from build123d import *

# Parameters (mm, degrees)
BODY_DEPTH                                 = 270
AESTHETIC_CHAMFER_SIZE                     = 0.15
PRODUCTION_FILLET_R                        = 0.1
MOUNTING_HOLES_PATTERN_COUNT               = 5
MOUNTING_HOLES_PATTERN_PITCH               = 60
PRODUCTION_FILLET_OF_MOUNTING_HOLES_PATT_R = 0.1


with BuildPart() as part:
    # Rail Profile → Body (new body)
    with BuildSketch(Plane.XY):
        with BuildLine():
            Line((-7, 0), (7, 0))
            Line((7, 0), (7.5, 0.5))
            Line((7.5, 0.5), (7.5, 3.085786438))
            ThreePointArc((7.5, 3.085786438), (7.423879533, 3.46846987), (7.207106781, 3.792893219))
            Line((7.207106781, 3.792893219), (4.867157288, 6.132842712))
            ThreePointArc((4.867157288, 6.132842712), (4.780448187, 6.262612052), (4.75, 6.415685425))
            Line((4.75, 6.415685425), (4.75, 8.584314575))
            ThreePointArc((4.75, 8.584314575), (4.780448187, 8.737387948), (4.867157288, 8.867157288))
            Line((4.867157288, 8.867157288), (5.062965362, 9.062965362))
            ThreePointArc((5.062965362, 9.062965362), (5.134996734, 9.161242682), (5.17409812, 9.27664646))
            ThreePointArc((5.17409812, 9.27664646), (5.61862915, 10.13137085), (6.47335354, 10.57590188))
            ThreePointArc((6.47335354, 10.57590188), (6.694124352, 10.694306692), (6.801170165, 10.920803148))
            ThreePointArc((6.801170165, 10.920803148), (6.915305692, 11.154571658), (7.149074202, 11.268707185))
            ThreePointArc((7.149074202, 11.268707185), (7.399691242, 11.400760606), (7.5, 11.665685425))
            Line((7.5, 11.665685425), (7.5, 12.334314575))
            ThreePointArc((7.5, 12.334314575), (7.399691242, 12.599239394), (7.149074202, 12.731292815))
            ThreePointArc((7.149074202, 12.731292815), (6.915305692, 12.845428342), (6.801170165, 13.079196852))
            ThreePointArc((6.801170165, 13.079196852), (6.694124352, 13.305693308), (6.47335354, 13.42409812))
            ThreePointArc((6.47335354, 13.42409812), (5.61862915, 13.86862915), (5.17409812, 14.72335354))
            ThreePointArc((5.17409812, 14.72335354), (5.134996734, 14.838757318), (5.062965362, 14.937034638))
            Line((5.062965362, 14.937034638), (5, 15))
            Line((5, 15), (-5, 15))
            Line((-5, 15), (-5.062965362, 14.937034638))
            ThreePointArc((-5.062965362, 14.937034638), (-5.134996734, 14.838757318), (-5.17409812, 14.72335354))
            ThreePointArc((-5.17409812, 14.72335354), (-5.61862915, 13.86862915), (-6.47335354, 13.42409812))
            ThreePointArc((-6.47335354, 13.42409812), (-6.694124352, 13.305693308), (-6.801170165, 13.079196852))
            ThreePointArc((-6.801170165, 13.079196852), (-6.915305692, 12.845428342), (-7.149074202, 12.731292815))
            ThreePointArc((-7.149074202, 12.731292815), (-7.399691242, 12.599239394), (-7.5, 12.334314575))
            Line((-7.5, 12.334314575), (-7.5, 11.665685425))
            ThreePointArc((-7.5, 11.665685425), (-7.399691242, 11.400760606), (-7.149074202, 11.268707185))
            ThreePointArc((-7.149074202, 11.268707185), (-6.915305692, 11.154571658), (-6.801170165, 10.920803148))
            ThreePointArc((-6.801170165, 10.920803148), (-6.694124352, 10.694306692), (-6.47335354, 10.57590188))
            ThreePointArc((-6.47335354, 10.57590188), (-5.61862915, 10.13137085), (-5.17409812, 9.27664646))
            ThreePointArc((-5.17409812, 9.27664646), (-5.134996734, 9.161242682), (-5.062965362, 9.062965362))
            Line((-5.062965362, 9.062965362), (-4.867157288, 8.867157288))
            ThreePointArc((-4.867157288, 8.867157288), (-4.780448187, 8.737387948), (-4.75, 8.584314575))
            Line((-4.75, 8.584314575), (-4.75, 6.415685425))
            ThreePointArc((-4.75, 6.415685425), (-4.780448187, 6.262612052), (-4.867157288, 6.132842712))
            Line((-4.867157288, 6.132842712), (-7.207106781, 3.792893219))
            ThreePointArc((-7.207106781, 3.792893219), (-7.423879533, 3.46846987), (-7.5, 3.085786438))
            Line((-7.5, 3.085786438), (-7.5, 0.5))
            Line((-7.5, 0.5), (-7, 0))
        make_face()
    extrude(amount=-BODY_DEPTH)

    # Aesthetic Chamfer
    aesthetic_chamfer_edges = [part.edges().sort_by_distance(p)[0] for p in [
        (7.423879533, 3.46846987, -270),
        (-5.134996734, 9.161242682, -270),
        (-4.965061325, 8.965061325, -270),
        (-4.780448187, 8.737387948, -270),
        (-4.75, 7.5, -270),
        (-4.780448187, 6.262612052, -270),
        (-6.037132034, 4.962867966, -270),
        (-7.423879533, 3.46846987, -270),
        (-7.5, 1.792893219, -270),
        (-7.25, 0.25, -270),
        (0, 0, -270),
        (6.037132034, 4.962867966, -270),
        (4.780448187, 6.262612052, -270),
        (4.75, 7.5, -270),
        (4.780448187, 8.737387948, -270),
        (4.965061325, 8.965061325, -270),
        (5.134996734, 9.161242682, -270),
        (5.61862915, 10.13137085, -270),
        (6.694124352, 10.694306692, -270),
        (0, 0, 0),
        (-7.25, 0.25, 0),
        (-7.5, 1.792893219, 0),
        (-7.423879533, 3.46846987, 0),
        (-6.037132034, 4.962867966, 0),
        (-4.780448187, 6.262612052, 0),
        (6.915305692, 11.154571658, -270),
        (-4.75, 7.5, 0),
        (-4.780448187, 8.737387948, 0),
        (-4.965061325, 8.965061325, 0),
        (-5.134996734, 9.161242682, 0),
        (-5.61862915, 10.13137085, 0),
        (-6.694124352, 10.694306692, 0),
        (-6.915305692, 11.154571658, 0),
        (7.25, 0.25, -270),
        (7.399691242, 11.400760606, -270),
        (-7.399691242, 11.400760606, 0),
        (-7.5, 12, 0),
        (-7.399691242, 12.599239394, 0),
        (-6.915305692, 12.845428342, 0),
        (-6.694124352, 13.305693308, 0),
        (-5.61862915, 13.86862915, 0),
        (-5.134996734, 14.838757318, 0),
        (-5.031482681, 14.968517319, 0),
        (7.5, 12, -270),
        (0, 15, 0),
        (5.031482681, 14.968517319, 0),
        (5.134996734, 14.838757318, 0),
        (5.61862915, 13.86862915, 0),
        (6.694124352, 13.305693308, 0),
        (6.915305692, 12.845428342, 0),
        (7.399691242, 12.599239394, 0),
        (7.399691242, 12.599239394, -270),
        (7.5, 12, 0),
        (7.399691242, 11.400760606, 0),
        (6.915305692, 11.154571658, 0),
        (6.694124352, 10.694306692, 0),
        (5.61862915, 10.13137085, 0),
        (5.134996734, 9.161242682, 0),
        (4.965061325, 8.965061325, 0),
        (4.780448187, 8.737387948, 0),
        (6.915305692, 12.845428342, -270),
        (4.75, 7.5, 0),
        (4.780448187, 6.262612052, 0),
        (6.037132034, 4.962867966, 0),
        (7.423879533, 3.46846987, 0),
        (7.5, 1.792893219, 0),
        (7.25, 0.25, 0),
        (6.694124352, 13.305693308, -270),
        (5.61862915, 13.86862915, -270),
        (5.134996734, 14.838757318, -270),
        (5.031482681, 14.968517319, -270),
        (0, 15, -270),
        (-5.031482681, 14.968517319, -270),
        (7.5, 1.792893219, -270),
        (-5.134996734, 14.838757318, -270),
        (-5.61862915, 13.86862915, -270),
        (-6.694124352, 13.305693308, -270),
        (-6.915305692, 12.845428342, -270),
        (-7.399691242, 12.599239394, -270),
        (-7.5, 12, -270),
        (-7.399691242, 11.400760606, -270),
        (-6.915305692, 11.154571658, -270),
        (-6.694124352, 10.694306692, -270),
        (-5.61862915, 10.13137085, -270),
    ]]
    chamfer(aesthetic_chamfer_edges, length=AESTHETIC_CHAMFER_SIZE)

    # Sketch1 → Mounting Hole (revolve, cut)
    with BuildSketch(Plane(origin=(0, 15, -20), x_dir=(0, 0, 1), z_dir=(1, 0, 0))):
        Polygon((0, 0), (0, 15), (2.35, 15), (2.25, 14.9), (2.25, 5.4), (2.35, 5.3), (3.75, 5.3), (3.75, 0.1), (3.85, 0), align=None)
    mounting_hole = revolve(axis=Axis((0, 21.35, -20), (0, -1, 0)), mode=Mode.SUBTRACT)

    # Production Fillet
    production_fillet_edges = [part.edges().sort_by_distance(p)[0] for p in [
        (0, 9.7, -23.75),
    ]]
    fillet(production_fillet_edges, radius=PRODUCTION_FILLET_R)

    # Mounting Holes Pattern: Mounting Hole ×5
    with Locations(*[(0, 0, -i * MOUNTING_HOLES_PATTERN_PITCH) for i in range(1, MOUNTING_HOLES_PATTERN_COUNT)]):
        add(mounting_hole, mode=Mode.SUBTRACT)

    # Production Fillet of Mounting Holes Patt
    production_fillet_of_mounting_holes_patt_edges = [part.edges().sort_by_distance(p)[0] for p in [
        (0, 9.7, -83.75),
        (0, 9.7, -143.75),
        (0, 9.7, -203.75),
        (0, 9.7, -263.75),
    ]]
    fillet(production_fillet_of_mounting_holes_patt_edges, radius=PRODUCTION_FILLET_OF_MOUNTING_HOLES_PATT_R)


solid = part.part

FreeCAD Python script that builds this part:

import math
import FreeCAD as App
import Part
import Sketcher

V = App.Vector
Q = App.Units.Quantity


def edges_at(feature, points):
    """Names of the edges that pass closest to the given points."""
    edges = feature.Shape.Edges
    near = lambda p: min(range(len(edges)), key=lambda i: edges[i].distToShape(Part.Vertex(*p))[0])
    return sorted({f"Edge{near(p) + 1}" for p in points})


def add_polygon(sketch, points):
    """Adds a closed chain of lines whose ends are joined by coincident constraints."""
    first, n = sketch.GeometryCount, len(points)
    for a, b in zip(points, points[1:] + points[:1]):
        sketch.addGeometry(Part.LineSegment(App.Vector(*a, 0), App.Vector(*b, 0)), False)
    for i in range(n):
        sketch.addConstraint(Sketcher.Constraint("Coincident", first + i, 2, first + (i + 1) % n, 1))

doc = App.newDocument("Part")
body = doc.addObject("PartDesign::Body", "Body")

sketch1 = body.newObject("Sketcher::SketchObject", "Sketch")
sketch1.AttachmentSupport = (doc.getObject("XY_Plane"), [""])
sketch1.MapMode = "FlatFace"
sketch1.addGeometry([
    Part.LineSegment(V(-7, 0, 0), V(7, 0, 0)),
    Part.LineSegment(V(7, 0, 0), V(7.5, 0.5, 0)),
    Part.LineSegment(V(7.5, 0.5, 0), V(7.5, 3.085786, 0)),
    Part.ArcOfCircle(Part.Circle(V(6.5, 3.085786, 0), V(0, 0, 1), 1), math.radians(0), math.radians(45)),
    Part.LineSegment(V(7.207107, 3.792893, 0), V(4.867157, 6.132843, 0)),
    Part.ArcOfCircle(Part.Circle(V(5.15, 6.415685, 0), V(0, 0, 1), 0.4), math.radians(180), math.radians(225)),
    Part.LineSegment(V(4.75, 6.415685, 0), V(4.75, 8.584315, 0)),
    Part.ArcOfCircle(Part.Circle(V(5.15, 8.584315, 0), V(0, 0, 1), 0.4), math.radians(135), math.radians(180)),
    Part.LineSegment(V(4.867157, 8.867157, 0), V(5.062965, 9.062965, 0)),
    Part.ArcOfCircle(Part.Circle(V(4.780123, 9.345808, 0), V(0, 0, 1), 0.4), math.radians(-45), math.radians(-9.956709)),
    Part.ArcOfCircle(Part.Circle(V(6.75, 9, 0), V(0, 0, 1), 1.6), math.radians(99.956709), math.radians(170.043291)),
    Part.ArcOfCircle(Part.Circle(V(6.404192, 10.969877, 0), V(0, 0, 1), 0.4), math.radians(-80.043291), math.radians(-7.047116)),
    Part.ArcOfCircle(Part.Circle(V(7.198148, 10.871729, 0), V(0, 0, 1), 0.4), math.radians(97.047116), math.radians(172.952884)),
    Part.ArcOfCircle(Part.Circle(V(7.1, 11.665685, 0), V(0, 0, 1), 0.4), math.radians(-82.952884), math.radians(0)),
    Part.LineSegment(V(7.5, 11.665685, 0), V(7.5, 12.334315, 0)),
    Part.ArcOfCircle(Part.Circle(V(7.1, 12.334315, 0), V(0, 0, 1), 0.4), math.radians(0), math.radians(82.952884)),
    Part.ArcOfCircle(Part.Circle(V(7.198148, 13.128271, 0), V(0, 0, 1), 0.4), math.radians(-172.952884), math.radians(-97.047116)),
    Part.ArcOfCircle(Part.Circle(V(6.404192, 13.030123, 0), V(0, 0, 1), 0.4), math.radians(7.047116), math.radians(80.043291)),
    Part.ArcOfCircle(Part.Circle(V(6.75, 15, 0), V(0, 0, 1), 1.6), math.radians(-170.043291), math.radians(-99.956709)),
    Part.ArcOfCircle(Part.Circle(V(4.780123, 14.654192, 0), V(0, 0, 1), 0.4), math.radians(9.956709), math.radians(45)),
    Part.LineSegment(V(5.062965, 14.937035, 0), V(5, 15, 0)),
    Part.LineSegment(V(5, 15, 0), V(-5, 15, 0)),
    Part.LineSegment(V(-5, 15, 0), V(-5.062965, 14.937035, 0)),
    Part.ArcOfCircle(Part.Circle(V(-4.780123, 14.654192, 0), V(0, 0, 1), 0.4), math.radians(135), math.radians(170.043291)),
    Part.ArcOfCircle(Part.Circle(V(-6.75, 15, 0), V(0, 0, 1), 1.6), math.radians(-80.043291), math.radians(-9.956709)),
    Part.ArcOfCircle(Part.Circle(V(-6.404192, 13.030123, 0), V(0, 0, 1), 0.4), math.radians(99.956709), math.radians(172.952884)),
    Part.ArcOfCircle(Part.Circle(V(-7.198148, 13.128271, 0), V(0, 0, 1), 0.4), math.radians(-82.952884), math.radians(-7.047116)),
    Part.ArcOfCircle(Part.Circle(V(-7.1, 12.334315, 0), V(0, 0, 1), 0.4), math.radians(97.047116), math.radians(180)),
    Part.LineSegment(V(-7.5, 12.334315, 0), V(-7.5, 11.665685, 0)),
    Part.ArcOfCircle(Part.Circle(V(-7.1, 11.665685, 0), V(0, 0, 1), 0.4), math.radians(180), math.radians(262.952884)),
    Part.ArcOfCircle(Part.Circle(V(-7.198148, 10.871729, 0), V(0, 0, 1), 0.4), math.radians(7.047116), math.radians(82.952884)),
    Part.ArcOfCircle(Part.Circle(V(-6.404192, 10.969877, 0), V(0, 0, 1), 0.4), math.radians(-172.952884), math.radians(-99.956709)),
    Part.ArcOfCircle(Part.Circle(V(-6.75, 9, 0), V(0, 0, 1), 1.6), math.radians(9.956709), math.radians(80.043291)),
    Part.ArcOfCircle(Part.Circle(V(-4.780123, 9.345808, 0), V(0, 0, 1), 0.4), math.radians(-170.043291), math.radians(-135)),
    Part.LineSegment(V(-5.062965, 9.062965, 0), V(-4.867157, 8.867157, 0)),
    Part.ArcOfCircle(Part.Circle(V(-5.15, 8.584315, 0), V(0, 0, 1), 0.4), math.radians(0), math.radians(45)),
    Part.LineSegment(V(-4.75, 8.584315, 0), V(-4.75, 6.415685, 0)),
    Part.ArcOfCircle(Part.Circle(V(-5.15, 6.415685, 0), V(0, 0, 1), 0.4), math.radians(-45), math.radians(0)),
    Part.LineSegment(V(-4.867157, 6.132843, 0), V(-7.207107, 3.792893, 0)),
    Part.ArcOfCircle(Part.Circle(V(-6.5, 3.085786, 0), V(0, 0, 1), 1), math.radians(135), math.radians(180)),
    Part.LineSegment(V(-7.5, 3.085786, 0), V(-7.5, 0.5, 0)),
    Part.LineSegment(V(-7.5, 0.5, 0), V(-7, 0, 0)),
], False)
sketch1.addConstraint([
    Sketcher.Constraint("Coincident", 0, 2, 1, 1),
    Sketcher.Constraint("Coincident", 1, 2, 2, 1),
    Sketcher.Constraint("Tangent", 2, 2, 3, 1),
    Sketcher.Constraint("Tangent", 3, 2, 4, 1),
    Sketcher.Constraint("Tangent", 4, 2, 5, 2),
    Sketcher.Constraint("Tangent", 5, 1, 6, 1),
    Sketcher.Constraint("Tangent", 6, 2, 7, 2),
    Sketcher.Constraint("Tangent", 7, 1, 8, 1),
    Sketcher.Constraint("Tangent", 8, 2, 9, 1),
    Sketcher.Constraint("Tangent", 9, 2, 10, 2),
    Sketcher.Constraint("Tangent", 10, 1, 11, 1),
    Sketcher.Constraint("Tangent", 11, 2, 12, 2),
    Sketcher.Constraint("Tangent", 12, 1, 13, 1),
    Sketcher.Constraint("Tangent", 13, 2, 14, 1),
    Sketcher.Constraint("Tangent", 14, 2, 15, 1),
    Sketcher.Constraint("Tangent", 15, 2, 16, 2),
    Sketcher.Constraint("Tangent", 16, 1, 17, 1),
    Sketcher.Constraint("Tangent", 17, 2, 18, 2),
    Sketcher.Constraint("Tangent", 18, 1, 19, 1),
    Sketcher.Constraint("Tangent", 19, 2, 20, 1),
    Sketcher.Constraint("Coincident", 20, 2, 21, 1),
    Sketcher.Constraint("Coincident", 21, 2, 22, 1),
    Sketcher.Constraint("Tangent", 22, 2, 23, 1),
    Sketcher.Constraint("Tangent", 23, 2, 24, 2),
    Sketcher.Constraint("Tangent", 24, 1, 25, 1),
    Sketcher.Constraint("Tangent", 25, 2, 26, 2),
    Sketcher.Constraint("Tangent", 26, 1, 27, 1),
    Sketcher.Constraint("Tangent", 27, 2, 28, 1),
    Sketcher.Constraint("Tangent", 28, 2, 29, 1),
    Sketcher.Constraint("Tangent", 29, 2, 30, 2),
    Sketcher.Constraint("Tangent", 30, 1, 31, 1),
    Sketcher.Constraint("Tangent", 31, 2, 32, 2),
    Sketcher.Constraint("Tangent", 32, 1, 33, 1),
    Sketcher.Constraint("Tangent", 33, 2, 34, 1),
    Sketcher.Constraint("Tangent", 34, 2, 35, 2),
    Sketcher.Constraint("Tangent", 35, 1, 36, 1),
    Sketcher.Constraint("Tangent", 36, 2, 37, 2),
    Sketcher.Constraint("Tangent", 37, 1, 38, 1),
    Sketcher.Constraint("Tangent", 38, 2, 39, 1),
    Sketcher.Constraint("Tangent", 39, 2, 40, 1),
    Sketcher.Constraint("Coincident", 40, 2, 41, 1),
    Sketcher.Constraint("Coincident", 41, 2, 0, 1),
    Sketcher.Constraint("Horizontal", 0),
    Sketcher.Constraint("Vertical", 2),
    Sketcher.Constraint("Vertical", 6),
    Sketcher.Constraint("Vertical", 14),
    Sketcher.Constraint("Horizontal", 21),
    Sketcher.Constraint("Vertical", 28),
    Sketcher.Constraint("Vertical", 36),
    Sketcher.Constraint("Vertical", 40),
    Sketcher.Constraint("Equal", 5, 7),
    Sketcher.Constraint("Equal", 7, 9),
    Sketcher.Constraint("Equal", 9, 11),
    Sketcher.Constraint("Equal", 11, 12),
    Sketcher.Constraint("Equal", 12, 13),
    Sketcher.Constraint("Equal", 13, 15),
    Sketcher.Constraint("Equal", 15, 16),
    Sketcher.Constraint("Equal", 16, 17),
    Sketcher.Constraint("Equal", 10, 18),
    Sketcher.Constraint("Equal", 17, 19),
    Sketcher.Constraint("Equal", 19, 23),
    Sketcher.Constraint("Equal", 18, 24),
    Sketcher.Constraint("Equal", 23, 25),
    Sketcher.Constraint("Equal", 25, 26),
    Sketcher.Constraint("Equal", 26, 27),
    Sketcher.Constraint("Equal", 27, 29),
    Sketcher.Constraint("Equal", 29, 30),
    Sketcher.Constraint("Equal", 30, 31),
    Sketcher.Constraint("Equal", 24, 32),
    Sketcher.Constraint("Equal", 31, 33),
    Sketcher.Constraint("Equal", 33, 35),
    Sketcher.Constraint("Equal", 35, 37),
    Sketcher.Constraint("Equal", 3, 39),
    Sketcher.Constraint("Symmetric", 0, 2, 41, 2, -1, 1),
    Sketcher.Constraint("Symmetric", 19, 3, 23, 3, -2),
    Sketcher.Constraint("Symmetric", 17, 3, 25, 3, -2),
    Sketcher.Constraint("Symmetric", 15, 3, 27, 3, -2),
    Sketcher.Constraint("Symmetric", 12, 3, 30, 3, -2),
    Sketcher.Constraint("Symmetric", 10, 3, 32, 3, -2),
    Sketcher.Constraint("Symmetric", 7, 3, 35, 3, -2),
    Sketcher.Constraint("Symmetric", 3, 3, 39, 3, -2),
    Sketcher.Constraint("Perpendicular", 1, 4),
    Sketcher.Constraint("Perpendicular", 4, 8),
    Sketcher.Constraint("Perpendicular", 8, 20),
    Sketcher.Constraint("Perpendicular", 20, 22),
    Sketcher.Constraint("Perpendicular", 22, 34),
    Sketcher.Constraint("Perpendicular", 34, 38),
    Sketcher.Constraint("Perpendicular", 38, 41),
    Sketcher.Constraint("Horizontal", 9, 3, 33, 3),
    Sketcher.Constraint("Horizontal", 24, 3, 20, 2),
    Sketcher.Constraint("Vertical", 12, 3, 16, 3),
    Sketcher.Constraint("Vertical", 11, 3, 17, 3),
    Sketcher.Constraint("Vertical", 10, 3, 18, 3),
    Sketcher.Constraint("Vertical", 9, 3, 19, 3),
    Sketcher.Constraint("Vertical", 2, 2, 13, 2),
    Sketcher.Constraint("Radius", 3, Q("1 mm")),
    Sketcher.Constraint("Radius", 5, Q("0.4 mm")),
    Sketcher.Constraint("Radius", 10, Q("1.6 mm")),
    Sketcher.Constraint("DistanceX", 0, 1, 0, 2, Q("14 mm")),
    Sketcher.Constraint("DistanceX", 21, 2, 21, 1, Q("10 mm")),
    Sketcher.Constraint("DistanceY", -1, 1, 10, 3, Q("9 mm")),
    Sketcher.Constraint("DistanceY", -1, 1, 18, 3, Q("15 mm")),
    Sketcher.Constraint("DistanceX", -1, 1, 3, 3, Q("6.5 mm")),
    Sketcher.Constraint("DistanceX", -1, 1, 5, 3, Q("5.15 mm")),
    Sketcher.Constraint("DistanceX", -1, 1, 10, 3, Q("6.75 mm")),
    Sketcher.Constraint("DistanceY", 6, 1, 6, 2, Q("2.168629 mm")),
    Sketcher.Constraint("DistanceY", 14, 1, 14, 2, Q("0.668629 mm")),
    Sketcher.Constraint("DistanceY", -1, 1, 10, 1, Q("10.575902 mm")),
])
pad1 = body.newObject("PartDesign::Pad", "Pad")
pad1.Profile = sketch1
pad1.Length = 270
pad1.Reversed = True
doc.recompute()

chamfer = body.newObject("PartDesign::Chamfer", "Chamfer")
chamfer.Base = (pad1, edges_at(pad1, [
    (7.424, 3.468, -270),
    (-5.135, 9.161, -270),
    (-4.965, 8.965, -270),
    (-4.78, 8.737, -270),
    (-4.75, 7.5, -270),
    (-4.78, 6.263, -270),
    (-6.037, 4.963, -270),
    (-7.424, 3.468, -270),
    (-7.5, 1.793, -270),
    (-7.25, 0.25, -270),
    (0, 0, -270),
    (6.037, 4.963, -270),
    (4.78, 6.263, -270),
    (4.75, 7.5, -270),
    (4.78, 8.737, -270),
    (4.965, 8.965, -270),
    (5.135, 9.161, -270),
    (5.619, 10.131, -270),
    (6.694, 10.694, -270),
    (0, 0, 0),
    (-7.25, 0.25, 0),
    (-7.5, 1.793, 0),
    (-7.424, 3.468, 0),
    (-6.037, 4.963, 0),
    (-4.78, 6.263, 0),
    (6.915, 11.155, -270),
    (-4.75, 7.5, 0),
    (-4.78, 8.737, 0),
    (-4.965, 8.965, 0),
    (-5.135, 9.161, 0),
    (-5.619, 10.131, 0),
    (-6.694, 10.694, 0),
    (-6.915, 11.155, 0),
    (7.25, 0.25, -270),
    (7.4, 11.401, -270),
    (-7.4, 11.401, 0),
    (-7.5, 12, 0),
    (-7.4, 12.599, 0),
    (-6.915, 12.845, 0),
    (-6.694, 13.306, 0),
    (-5.619, 13.869, 0),
    (-5.135, 14.839, 0),
    (-5.031, 14.969, 0),
    (7.5, 12, -270),
    (0, 15, 0),
    (5.031, 14.969, 0),
    (5.135, 14.839, 0),
    (5.619, 13.869, 0),
    (6.694, 13.306, 0),
    (6.915, 12.845, 0),
    (7.4, 12.599, 0),
    (7.4, 12.599, -270),
    (7.5, 12, 0),
    (7.4, 11.401, 0),
    (6.915, 11.155, 0),
    (6.694, 10.694, 0),
    (5.619, 10.131, 0),
    (5.135, 9.161, 0),
    (4.965, 8.965, 0),
    (4.78, 8.737, 0),
    (6.915, 12.845, -270),
    (4.75, 7.5, 0),
    (4.78, 6.263, 0),
    (6.037, 4.963, 0),
    (7.424, 3.468, 0),
    (7.5, 1.793, 0),
    (7.25, 0.25, 0),
    (6.694, 13.306, -270),
    (5.619, 13.869, -270),
    (5.135, 14.839, -270),
    (5.031, 14.969, -270),
    (0, 15, -270),
    (-5.031, 14.969, -270),
    (7.5, 1.793, -270),
    (-5.135, 14.839, -270),
    (-5.619, 13.869, -270),
    (-6.694, 13.306, -270),
    (-6.915, 12.845, -270),
    (-7.4, 12.599, -270),
    (-7.5, 12, -270),
    (-7.4, 11.401, -270),
    (-6.915, 11.155, -270),
    (-6.694, 10.694, -270),
    (-5.619, 10.131, -270),
]))
chamfer.Size = 0.15

sketch2 = body.newObject("Sketcher::SketchObject", "Sketch001")
sketch2.AttachmentSupport = (doc.getObject("YZ_Plane"), [""])
sketch2.MapMode = "FlatFace"
add_polygon(sketch2, [(0, -20), (15, -20), (15, -16.15), (14.9, -16.25), (9.7, -16.25), (9.7, -17.65), (9.6, -17.75), (0.1, -17.75), (0, -17.65)])
sketch2.addGeometry(Part.LineSegment(V(15, -20, 0), V(0, -20, 0)), True)
sketch2.addConstraint([
    Sketcher.Constraint("Horizontal", 0),
    Sketcher.Constraint("Vertical", 1),
    Sketcher.Constraint("Horizontal", 3),
    Sketcher.Constraint("Vertical", 4),
    Sketcher.Constraint("Horizontal", 6),
    Sketcher.Constraint("Vertical", 8),
    Sketcher.Constraint("Horizontal", 9),
    Sketcher.Constraint("Coincident", 9, 1, 0, 2),
    Sketcher.Constraint("PointOnObject", 7, 2, -2),
    Sketcher.Constraint("PointOnObject", 9, 2, -2),
    Sketcher.Constraint("Parallel", 2, 5),
    Sketcher.Constraint("Perpendicular", 5, 7),
    Sketcher.Constraint("Horizontal", 4, 2, 7, 2),
    Sketcher.Constraint("Equal", 2, 5),
    Sketcher.Constraint("Equal", 5, 7),
    Sketcher.Constraint("DistanceX", 0, 1, 0, 2, Q("15 mm")),
    Sketcher.Constraint("DistanceX", 3, 2, 3, 1, Q("5.2 mm")),
    Sketcher.Constraint("DistanceX", 6, 2, 6, 1, Q("9.5 mm")),
    Sketcher.Constraint("DistanceY", 4, 2, 4, 1, Q("1.4 mm")),
    Sketcher.Constraint("DistanceY", 0, 2, -1, 1, Q("20 mm")),
    Sketcher.Constraint("DistanceY", 1, 1, 1, 2, Q("3.85 mm")),
])
groove = body.newObject("PartDesign::Groove", "Groove")
groove.Profile = sketch2
groove.ReferenceAxis = (sketch2, ["Axis0"])
groove.Angle = 360
doc.recompute()

fillet = body.newObject("PartDesign::Fillet", "Fillet")
fillet.Base = (groove, edges_at(groove, [(0, 9.7, -23.75)]))
fillet.Radius = 0.1
doc.recompute()

linearpattern = body.newObject("PartDesign::LinearPattern", "LinearPattern")
linearpattern.Originals = [groove]
linearpattern.Direction = (doc.getObject("Z_Axis"), [""])
linearpattern.Mode = "offset"
linearpattern.Offset = 60
linearpattern.Occurrences = 5
linearpattern.Reversed = True
body.Tip = linearpattern
doc.recompute()

fillet2 = body.newObject("PartDesign::Fillet", "Fillet001")
fillet2.Base = (linearpattern, edges_at(linearpattern, [
    (0, 9.7, -83.75),
    (0, 9.7, -143.75),
    (0, 9.7, -203.75),
    (0, 9.7, -263.75),
]))
fillet2.Radius = 0.1

doc.recompute()
